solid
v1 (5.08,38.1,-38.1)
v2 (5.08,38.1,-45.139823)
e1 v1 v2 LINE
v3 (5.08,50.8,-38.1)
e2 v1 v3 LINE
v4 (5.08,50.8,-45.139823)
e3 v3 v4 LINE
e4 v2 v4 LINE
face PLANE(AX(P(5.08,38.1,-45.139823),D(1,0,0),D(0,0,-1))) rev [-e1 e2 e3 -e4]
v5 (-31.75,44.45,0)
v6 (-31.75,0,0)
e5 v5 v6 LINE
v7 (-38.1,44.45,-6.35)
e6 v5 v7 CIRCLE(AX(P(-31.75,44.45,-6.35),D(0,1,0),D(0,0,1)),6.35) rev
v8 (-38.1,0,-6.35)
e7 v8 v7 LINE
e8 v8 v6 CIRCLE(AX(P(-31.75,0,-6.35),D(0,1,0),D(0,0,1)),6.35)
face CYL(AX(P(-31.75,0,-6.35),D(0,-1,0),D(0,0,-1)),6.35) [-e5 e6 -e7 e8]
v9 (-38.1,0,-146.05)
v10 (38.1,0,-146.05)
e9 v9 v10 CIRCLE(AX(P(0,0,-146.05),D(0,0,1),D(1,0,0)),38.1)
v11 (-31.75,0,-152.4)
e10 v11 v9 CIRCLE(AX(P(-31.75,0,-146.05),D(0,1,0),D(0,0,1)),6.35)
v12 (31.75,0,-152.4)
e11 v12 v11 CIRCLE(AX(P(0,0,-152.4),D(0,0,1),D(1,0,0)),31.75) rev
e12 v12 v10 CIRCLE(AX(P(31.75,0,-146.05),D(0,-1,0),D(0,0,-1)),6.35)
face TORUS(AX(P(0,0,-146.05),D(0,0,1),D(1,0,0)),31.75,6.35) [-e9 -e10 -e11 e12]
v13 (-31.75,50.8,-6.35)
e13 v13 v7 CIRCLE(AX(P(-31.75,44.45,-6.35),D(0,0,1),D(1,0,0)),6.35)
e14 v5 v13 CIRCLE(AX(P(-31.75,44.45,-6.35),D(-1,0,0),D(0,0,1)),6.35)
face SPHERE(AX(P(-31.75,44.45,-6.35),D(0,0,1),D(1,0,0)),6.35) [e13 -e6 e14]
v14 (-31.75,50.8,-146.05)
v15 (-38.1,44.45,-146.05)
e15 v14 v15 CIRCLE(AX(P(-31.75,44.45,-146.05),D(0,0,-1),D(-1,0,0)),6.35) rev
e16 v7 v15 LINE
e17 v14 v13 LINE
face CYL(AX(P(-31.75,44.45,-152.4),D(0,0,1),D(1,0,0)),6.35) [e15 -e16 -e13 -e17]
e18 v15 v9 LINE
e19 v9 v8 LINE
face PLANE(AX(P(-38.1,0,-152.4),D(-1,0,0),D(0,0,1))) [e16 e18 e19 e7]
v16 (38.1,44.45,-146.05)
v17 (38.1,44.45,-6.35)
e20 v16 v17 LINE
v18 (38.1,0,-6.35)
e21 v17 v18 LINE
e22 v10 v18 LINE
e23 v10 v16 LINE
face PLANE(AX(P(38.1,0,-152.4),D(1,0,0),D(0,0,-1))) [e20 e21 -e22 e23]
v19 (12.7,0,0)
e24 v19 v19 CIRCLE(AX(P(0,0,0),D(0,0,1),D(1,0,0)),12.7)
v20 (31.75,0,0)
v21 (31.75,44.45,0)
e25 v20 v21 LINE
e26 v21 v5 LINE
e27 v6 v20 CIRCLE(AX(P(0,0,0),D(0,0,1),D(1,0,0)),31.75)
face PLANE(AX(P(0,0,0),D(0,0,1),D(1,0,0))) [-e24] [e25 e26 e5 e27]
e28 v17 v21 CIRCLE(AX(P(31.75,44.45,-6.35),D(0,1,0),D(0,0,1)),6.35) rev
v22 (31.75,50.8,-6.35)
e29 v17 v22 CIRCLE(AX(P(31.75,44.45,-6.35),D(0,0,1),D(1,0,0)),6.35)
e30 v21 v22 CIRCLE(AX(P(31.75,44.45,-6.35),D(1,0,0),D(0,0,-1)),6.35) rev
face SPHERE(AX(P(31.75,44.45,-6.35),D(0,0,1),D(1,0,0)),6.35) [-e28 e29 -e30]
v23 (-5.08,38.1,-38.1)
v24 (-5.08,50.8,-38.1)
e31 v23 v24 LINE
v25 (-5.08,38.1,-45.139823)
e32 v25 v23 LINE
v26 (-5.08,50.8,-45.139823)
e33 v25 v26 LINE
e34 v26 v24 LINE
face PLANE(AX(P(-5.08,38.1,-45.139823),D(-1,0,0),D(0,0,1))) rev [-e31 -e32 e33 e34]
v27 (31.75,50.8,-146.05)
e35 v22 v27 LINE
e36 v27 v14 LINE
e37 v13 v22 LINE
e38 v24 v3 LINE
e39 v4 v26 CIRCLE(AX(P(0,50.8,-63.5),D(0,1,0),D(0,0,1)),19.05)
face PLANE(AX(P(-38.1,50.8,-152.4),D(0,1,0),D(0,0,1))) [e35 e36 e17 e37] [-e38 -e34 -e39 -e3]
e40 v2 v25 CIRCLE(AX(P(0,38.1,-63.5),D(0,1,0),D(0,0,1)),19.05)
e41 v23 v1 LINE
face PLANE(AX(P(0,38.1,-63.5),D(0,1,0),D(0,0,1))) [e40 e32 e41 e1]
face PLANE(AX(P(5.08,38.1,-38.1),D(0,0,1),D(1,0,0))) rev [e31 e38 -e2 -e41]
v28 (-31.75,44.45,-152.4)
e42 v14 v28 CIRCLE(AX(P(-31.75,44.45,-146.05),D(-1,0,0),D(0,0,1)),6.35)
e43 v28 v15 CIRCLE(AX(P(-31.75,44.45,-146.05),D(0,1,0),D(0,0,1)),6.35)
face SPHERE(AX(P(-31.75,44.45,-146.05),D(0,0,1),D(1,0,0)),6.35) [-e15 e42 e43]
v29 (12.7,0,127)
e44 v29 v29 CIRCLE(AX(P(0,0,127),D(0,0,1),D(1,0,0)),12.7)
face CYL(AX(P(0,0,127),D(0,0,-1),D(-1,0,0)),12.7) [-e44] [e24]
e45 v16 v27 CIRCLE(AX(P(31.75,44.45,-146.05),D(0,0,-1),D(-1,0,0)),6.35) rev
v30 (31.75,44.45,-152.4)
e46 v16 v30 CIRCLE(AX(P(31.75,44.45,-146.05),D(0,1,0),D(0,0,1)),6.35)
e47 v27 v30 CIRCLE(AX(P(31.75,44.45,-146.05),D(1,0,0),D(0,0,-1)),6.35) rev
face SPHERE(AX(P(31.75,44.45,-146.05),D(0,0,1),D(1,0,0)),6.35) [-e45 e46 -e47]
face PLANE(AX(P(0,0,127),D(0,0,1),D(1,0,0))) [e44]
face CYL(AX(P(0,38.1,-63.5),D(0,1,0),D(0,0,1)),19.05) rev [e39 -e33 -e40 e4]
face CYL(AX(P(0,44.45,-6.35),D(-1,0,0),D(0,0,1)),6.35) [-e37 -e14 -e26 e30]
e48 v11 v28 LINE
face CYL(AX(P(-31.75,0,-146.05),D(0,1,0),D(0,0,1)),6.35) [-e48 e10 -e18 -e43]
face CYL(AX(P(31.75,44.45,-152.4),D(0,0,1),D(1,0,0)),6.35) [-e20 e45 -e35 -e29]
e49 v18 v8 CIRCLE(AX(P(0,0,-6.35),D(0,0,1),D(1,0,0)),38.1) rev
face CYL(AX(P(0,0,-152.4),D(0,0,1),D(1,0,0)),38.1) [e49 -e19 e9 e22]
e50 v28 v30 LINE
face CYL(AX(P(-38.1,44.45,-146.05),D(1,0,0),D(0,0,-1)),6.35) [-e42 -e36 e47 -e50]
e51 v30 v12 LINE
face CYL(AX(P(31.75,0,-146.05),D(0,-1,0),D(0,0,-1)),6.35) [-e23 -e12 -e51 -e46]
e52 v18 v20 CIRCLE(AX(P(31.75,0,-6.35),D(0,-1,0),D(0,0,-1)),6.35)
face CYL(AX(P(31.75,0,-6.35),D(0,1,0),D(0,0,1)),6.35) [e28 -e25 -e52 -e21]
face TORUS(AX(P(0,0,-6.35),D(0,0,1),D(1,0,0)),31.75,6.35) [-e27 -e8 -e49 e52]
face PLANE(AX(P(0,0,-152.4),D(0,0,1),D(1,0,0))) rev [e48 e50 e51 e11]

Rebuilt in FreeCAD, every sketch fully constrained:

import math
import FreeCAD as App
import Part
import Sketcher

V = App.Vector
Q = App.Units.Quantity


def edges_at(feature, points):
    """Names of the edges that pass closest to the given points."""
    edges = feature.Shape.Edges
    near = lambda p: min(range(len(edges)), key=lambda i: edges[i].distToShape(Part.Vertex(*p))[0])
    return sorted({f"Edge{near(p) + 1}" for p in points})

doc = App.newDocument("Part")
params = doc.addObject("Spreadsheet::Sheet", "Params")
for row, (alias, value) in enumerate([
    ("sketch1_radius", "1.5 in"),
    ("sketch1_height", "2 in"),
    ("pad1_length", "6 in"),
    ("sketch2_diameter", "1 in"),
    ("pad2_length", "5 in"),
    ("sketch3_radius", "0.75 in"),
    ("sketch3_width", "0.4 in"),
    ("pocket1_length", "0.5 in"),
    ("fillet_radius", "0.25 in"),
], start=1):
    params.set(f"A{row}", alias)
    params.set(f"B{row}", "=" + value)
    params.setAlias(f"B{row}", alias)

body = doc.addObject("PartDesign::Body", "Body")

# Sketch on XY plane
sketch1 = doc.addObject("Sketcher::SketchObject", "Sketch")
body.addObject(sketch1)
sketch1.AttachmentSupport = (doc.XY_Plane, [""])
sketch1.MapMode = "FlatFace"
sketch1.addGeometry([
    Part.LineSegment(V(-38, 51, 0), V(-38, 0, 0)),
    Part.ArcOfCircle(Part.Circle(V(0, 0, 0), V(0, 0, 1), 38), math.radians(180), math.radians(360)),
    Part.LineSegment(V(38, 0, 0), V(38, 51, 0)),
    Part.LineSegment(V(38, 51, 0), V(-38, 51, 0)),
], False)
sketch1.addConstraint([
    Sketcher.Constraint("Tangent", 0, 2, 1, 1),
    Sketcher.Constraint("Tangent", 1, 2, 2, 1),
    Sketcher.Constraint("Coincident", 2, 2, 3, 1),
    Sketcher.Constraint("Coincident", 3, 2, 0, 1),
    Sketcher.Constraint("Vertical", 0),
    Sketcher.Constraint("Vertical", 2),
    Sketcher.Constraint("Horizontal", 3),
    Sketcher.Constraint("Coincident", 1, 3, -1, 1),
    Sketcher.Constraint("Radius", 1, Q("1.5 in")),
    Sketcher.Constraint("DistanceY", 0, 2, 0, 1, Q("2 in")),
])
sketch1.setExpression("Constraints[8]", "Params.sketch1_radius")
sketch1.setExpression("Constraints[9]", "Params.sketch1_height")
pad1 = doc.addObject("PartDesign::Pad", "Pad")
body.addObject(pad1)
pad1.Profile = sketch1
pad1.setExpression("Length", "Params.pad1_length")
pad1.Reversed = True

# Sketch on XY plane
sketch2 = doc.addObject("Sketcher::SketchObject", "Sketch001")
body.addObject(sketch2)
sketch2.AttachmentSupport = (doc.XY_Plane, [""])
sketch2.MapMode = "FlatFace"
sketch2.addGeometry(Part.Circle(V(0, 0, 0), V(0, 0, 1), 13), False)
sketch2.addConstraint([
    Sketcher.Constraint("Coincident", 0, 3, -1, 1),
    Sketcher.Constraint("Diameter", 0, Q("1 in")),
])
sketch2.setExpression("Constraints[1]", "Params.sketch2_diameter")
pad2 = doc.addObject("PartDesign::Pad", "Pad001")
body.addObject(pad2)
pad2.Profile = sketch2
pad2.setExpression("Length", "Params.pad2_length")

# Sketch on XZ plane
sketch3 = doc.addObject("Sketcher::SketchObject", "Sketch002")
body.addObject(sketch3)
sketch3.AttachmentSupport = (doc.XZ_Plane, [""])
sketch3.MapMode = "FlatFace"
sketch3.AttachmentOffset = App.Placement(V(0, 0, -2 * 25.4), App.Rotation())
sketch3.addGeometry([
    Part.LineSegment(V(5, -38, 0), V(5, -45, 0)),
    Part.ArcOfCircle(Part.Circle(V(0, -64, 0), V(0, 0, 1), 19), math.radians(105), math.radians(435)),
    Part.LineSegment(V(-5, -45, 0), V(-5, -38, 0)),
    Part.LineSegment(V(-5, -38, 0), V(5, -38, 0)),
], False)
sketch3.addConstraint([
    Sketcher.Constraint("Coincident", 0, 2, 1, 2),
    Sketcher.Constraint("Coincident", 1, 1, 2, 1),
    Sketcher.Constraint("Coincident", 2, 2, 3, 1),
    Sketcher.Constraint("Coincident", 3, 2, 0, 1),
    Sketcher.Constraint("Vertical", 0),
    Sketcher.Constraint("Vertical", 2),
    Sketcher.Constraint("Horizontal", 3),
    Sketcher.Constraint("Symmetric", 0, 2, 1, 1, -2),
    Sketcher.Constraint("Radius", 1, Q("0.75 in")),
    Sketcher.Constraint("DistanceX", 3, 1, 3, 2, Q("0.4 in")),
    Sketcher.Constraint("DistanceY", 1, 3, 2, 2, Q("1 in")),
    Sketcher.Constraint("DistanceY", 1, 3, -1, 1, Q("2.5 in")),
])
sketch3.setExpression("Constraints[8]", "Params.sketch3_radius")
sketch3.setExpression("Constraints[9]", "Params.sketch3_width")
pocket1 = doc.addObject("PartDesign::Pocket", "Pocket")
body.addObject(pocket1)
pocket1.Profile = sketch3
pocket1.setExpression("Length", "Params.pocket1_length")
pocket1.Reversed = True
doc.recompute()

fillet = doc.addObject("PartDesign::Fillet", "Fillet")
body.addObject(fillet)
fillet.Base = (pocket1, edges_at(pocket1, [
    (0, 50.8, -152.4),
    (-38.1, 25.4, -152.4),
    (0, -38.1, -152.4),
    (-38.1, 25.4, 0),
    (0, 50.8, 0),
    (38.1, 25.4, 0),
    (0, -38.1, 0),
    (38.1, 25.4, -152.4),
    (-38.1, 50.8, -76.2),
    (38.1, 50.8, -76.2),
]))
fillet.setExpression("Radius", "Params.fillet_radius")

doc.recompute()
